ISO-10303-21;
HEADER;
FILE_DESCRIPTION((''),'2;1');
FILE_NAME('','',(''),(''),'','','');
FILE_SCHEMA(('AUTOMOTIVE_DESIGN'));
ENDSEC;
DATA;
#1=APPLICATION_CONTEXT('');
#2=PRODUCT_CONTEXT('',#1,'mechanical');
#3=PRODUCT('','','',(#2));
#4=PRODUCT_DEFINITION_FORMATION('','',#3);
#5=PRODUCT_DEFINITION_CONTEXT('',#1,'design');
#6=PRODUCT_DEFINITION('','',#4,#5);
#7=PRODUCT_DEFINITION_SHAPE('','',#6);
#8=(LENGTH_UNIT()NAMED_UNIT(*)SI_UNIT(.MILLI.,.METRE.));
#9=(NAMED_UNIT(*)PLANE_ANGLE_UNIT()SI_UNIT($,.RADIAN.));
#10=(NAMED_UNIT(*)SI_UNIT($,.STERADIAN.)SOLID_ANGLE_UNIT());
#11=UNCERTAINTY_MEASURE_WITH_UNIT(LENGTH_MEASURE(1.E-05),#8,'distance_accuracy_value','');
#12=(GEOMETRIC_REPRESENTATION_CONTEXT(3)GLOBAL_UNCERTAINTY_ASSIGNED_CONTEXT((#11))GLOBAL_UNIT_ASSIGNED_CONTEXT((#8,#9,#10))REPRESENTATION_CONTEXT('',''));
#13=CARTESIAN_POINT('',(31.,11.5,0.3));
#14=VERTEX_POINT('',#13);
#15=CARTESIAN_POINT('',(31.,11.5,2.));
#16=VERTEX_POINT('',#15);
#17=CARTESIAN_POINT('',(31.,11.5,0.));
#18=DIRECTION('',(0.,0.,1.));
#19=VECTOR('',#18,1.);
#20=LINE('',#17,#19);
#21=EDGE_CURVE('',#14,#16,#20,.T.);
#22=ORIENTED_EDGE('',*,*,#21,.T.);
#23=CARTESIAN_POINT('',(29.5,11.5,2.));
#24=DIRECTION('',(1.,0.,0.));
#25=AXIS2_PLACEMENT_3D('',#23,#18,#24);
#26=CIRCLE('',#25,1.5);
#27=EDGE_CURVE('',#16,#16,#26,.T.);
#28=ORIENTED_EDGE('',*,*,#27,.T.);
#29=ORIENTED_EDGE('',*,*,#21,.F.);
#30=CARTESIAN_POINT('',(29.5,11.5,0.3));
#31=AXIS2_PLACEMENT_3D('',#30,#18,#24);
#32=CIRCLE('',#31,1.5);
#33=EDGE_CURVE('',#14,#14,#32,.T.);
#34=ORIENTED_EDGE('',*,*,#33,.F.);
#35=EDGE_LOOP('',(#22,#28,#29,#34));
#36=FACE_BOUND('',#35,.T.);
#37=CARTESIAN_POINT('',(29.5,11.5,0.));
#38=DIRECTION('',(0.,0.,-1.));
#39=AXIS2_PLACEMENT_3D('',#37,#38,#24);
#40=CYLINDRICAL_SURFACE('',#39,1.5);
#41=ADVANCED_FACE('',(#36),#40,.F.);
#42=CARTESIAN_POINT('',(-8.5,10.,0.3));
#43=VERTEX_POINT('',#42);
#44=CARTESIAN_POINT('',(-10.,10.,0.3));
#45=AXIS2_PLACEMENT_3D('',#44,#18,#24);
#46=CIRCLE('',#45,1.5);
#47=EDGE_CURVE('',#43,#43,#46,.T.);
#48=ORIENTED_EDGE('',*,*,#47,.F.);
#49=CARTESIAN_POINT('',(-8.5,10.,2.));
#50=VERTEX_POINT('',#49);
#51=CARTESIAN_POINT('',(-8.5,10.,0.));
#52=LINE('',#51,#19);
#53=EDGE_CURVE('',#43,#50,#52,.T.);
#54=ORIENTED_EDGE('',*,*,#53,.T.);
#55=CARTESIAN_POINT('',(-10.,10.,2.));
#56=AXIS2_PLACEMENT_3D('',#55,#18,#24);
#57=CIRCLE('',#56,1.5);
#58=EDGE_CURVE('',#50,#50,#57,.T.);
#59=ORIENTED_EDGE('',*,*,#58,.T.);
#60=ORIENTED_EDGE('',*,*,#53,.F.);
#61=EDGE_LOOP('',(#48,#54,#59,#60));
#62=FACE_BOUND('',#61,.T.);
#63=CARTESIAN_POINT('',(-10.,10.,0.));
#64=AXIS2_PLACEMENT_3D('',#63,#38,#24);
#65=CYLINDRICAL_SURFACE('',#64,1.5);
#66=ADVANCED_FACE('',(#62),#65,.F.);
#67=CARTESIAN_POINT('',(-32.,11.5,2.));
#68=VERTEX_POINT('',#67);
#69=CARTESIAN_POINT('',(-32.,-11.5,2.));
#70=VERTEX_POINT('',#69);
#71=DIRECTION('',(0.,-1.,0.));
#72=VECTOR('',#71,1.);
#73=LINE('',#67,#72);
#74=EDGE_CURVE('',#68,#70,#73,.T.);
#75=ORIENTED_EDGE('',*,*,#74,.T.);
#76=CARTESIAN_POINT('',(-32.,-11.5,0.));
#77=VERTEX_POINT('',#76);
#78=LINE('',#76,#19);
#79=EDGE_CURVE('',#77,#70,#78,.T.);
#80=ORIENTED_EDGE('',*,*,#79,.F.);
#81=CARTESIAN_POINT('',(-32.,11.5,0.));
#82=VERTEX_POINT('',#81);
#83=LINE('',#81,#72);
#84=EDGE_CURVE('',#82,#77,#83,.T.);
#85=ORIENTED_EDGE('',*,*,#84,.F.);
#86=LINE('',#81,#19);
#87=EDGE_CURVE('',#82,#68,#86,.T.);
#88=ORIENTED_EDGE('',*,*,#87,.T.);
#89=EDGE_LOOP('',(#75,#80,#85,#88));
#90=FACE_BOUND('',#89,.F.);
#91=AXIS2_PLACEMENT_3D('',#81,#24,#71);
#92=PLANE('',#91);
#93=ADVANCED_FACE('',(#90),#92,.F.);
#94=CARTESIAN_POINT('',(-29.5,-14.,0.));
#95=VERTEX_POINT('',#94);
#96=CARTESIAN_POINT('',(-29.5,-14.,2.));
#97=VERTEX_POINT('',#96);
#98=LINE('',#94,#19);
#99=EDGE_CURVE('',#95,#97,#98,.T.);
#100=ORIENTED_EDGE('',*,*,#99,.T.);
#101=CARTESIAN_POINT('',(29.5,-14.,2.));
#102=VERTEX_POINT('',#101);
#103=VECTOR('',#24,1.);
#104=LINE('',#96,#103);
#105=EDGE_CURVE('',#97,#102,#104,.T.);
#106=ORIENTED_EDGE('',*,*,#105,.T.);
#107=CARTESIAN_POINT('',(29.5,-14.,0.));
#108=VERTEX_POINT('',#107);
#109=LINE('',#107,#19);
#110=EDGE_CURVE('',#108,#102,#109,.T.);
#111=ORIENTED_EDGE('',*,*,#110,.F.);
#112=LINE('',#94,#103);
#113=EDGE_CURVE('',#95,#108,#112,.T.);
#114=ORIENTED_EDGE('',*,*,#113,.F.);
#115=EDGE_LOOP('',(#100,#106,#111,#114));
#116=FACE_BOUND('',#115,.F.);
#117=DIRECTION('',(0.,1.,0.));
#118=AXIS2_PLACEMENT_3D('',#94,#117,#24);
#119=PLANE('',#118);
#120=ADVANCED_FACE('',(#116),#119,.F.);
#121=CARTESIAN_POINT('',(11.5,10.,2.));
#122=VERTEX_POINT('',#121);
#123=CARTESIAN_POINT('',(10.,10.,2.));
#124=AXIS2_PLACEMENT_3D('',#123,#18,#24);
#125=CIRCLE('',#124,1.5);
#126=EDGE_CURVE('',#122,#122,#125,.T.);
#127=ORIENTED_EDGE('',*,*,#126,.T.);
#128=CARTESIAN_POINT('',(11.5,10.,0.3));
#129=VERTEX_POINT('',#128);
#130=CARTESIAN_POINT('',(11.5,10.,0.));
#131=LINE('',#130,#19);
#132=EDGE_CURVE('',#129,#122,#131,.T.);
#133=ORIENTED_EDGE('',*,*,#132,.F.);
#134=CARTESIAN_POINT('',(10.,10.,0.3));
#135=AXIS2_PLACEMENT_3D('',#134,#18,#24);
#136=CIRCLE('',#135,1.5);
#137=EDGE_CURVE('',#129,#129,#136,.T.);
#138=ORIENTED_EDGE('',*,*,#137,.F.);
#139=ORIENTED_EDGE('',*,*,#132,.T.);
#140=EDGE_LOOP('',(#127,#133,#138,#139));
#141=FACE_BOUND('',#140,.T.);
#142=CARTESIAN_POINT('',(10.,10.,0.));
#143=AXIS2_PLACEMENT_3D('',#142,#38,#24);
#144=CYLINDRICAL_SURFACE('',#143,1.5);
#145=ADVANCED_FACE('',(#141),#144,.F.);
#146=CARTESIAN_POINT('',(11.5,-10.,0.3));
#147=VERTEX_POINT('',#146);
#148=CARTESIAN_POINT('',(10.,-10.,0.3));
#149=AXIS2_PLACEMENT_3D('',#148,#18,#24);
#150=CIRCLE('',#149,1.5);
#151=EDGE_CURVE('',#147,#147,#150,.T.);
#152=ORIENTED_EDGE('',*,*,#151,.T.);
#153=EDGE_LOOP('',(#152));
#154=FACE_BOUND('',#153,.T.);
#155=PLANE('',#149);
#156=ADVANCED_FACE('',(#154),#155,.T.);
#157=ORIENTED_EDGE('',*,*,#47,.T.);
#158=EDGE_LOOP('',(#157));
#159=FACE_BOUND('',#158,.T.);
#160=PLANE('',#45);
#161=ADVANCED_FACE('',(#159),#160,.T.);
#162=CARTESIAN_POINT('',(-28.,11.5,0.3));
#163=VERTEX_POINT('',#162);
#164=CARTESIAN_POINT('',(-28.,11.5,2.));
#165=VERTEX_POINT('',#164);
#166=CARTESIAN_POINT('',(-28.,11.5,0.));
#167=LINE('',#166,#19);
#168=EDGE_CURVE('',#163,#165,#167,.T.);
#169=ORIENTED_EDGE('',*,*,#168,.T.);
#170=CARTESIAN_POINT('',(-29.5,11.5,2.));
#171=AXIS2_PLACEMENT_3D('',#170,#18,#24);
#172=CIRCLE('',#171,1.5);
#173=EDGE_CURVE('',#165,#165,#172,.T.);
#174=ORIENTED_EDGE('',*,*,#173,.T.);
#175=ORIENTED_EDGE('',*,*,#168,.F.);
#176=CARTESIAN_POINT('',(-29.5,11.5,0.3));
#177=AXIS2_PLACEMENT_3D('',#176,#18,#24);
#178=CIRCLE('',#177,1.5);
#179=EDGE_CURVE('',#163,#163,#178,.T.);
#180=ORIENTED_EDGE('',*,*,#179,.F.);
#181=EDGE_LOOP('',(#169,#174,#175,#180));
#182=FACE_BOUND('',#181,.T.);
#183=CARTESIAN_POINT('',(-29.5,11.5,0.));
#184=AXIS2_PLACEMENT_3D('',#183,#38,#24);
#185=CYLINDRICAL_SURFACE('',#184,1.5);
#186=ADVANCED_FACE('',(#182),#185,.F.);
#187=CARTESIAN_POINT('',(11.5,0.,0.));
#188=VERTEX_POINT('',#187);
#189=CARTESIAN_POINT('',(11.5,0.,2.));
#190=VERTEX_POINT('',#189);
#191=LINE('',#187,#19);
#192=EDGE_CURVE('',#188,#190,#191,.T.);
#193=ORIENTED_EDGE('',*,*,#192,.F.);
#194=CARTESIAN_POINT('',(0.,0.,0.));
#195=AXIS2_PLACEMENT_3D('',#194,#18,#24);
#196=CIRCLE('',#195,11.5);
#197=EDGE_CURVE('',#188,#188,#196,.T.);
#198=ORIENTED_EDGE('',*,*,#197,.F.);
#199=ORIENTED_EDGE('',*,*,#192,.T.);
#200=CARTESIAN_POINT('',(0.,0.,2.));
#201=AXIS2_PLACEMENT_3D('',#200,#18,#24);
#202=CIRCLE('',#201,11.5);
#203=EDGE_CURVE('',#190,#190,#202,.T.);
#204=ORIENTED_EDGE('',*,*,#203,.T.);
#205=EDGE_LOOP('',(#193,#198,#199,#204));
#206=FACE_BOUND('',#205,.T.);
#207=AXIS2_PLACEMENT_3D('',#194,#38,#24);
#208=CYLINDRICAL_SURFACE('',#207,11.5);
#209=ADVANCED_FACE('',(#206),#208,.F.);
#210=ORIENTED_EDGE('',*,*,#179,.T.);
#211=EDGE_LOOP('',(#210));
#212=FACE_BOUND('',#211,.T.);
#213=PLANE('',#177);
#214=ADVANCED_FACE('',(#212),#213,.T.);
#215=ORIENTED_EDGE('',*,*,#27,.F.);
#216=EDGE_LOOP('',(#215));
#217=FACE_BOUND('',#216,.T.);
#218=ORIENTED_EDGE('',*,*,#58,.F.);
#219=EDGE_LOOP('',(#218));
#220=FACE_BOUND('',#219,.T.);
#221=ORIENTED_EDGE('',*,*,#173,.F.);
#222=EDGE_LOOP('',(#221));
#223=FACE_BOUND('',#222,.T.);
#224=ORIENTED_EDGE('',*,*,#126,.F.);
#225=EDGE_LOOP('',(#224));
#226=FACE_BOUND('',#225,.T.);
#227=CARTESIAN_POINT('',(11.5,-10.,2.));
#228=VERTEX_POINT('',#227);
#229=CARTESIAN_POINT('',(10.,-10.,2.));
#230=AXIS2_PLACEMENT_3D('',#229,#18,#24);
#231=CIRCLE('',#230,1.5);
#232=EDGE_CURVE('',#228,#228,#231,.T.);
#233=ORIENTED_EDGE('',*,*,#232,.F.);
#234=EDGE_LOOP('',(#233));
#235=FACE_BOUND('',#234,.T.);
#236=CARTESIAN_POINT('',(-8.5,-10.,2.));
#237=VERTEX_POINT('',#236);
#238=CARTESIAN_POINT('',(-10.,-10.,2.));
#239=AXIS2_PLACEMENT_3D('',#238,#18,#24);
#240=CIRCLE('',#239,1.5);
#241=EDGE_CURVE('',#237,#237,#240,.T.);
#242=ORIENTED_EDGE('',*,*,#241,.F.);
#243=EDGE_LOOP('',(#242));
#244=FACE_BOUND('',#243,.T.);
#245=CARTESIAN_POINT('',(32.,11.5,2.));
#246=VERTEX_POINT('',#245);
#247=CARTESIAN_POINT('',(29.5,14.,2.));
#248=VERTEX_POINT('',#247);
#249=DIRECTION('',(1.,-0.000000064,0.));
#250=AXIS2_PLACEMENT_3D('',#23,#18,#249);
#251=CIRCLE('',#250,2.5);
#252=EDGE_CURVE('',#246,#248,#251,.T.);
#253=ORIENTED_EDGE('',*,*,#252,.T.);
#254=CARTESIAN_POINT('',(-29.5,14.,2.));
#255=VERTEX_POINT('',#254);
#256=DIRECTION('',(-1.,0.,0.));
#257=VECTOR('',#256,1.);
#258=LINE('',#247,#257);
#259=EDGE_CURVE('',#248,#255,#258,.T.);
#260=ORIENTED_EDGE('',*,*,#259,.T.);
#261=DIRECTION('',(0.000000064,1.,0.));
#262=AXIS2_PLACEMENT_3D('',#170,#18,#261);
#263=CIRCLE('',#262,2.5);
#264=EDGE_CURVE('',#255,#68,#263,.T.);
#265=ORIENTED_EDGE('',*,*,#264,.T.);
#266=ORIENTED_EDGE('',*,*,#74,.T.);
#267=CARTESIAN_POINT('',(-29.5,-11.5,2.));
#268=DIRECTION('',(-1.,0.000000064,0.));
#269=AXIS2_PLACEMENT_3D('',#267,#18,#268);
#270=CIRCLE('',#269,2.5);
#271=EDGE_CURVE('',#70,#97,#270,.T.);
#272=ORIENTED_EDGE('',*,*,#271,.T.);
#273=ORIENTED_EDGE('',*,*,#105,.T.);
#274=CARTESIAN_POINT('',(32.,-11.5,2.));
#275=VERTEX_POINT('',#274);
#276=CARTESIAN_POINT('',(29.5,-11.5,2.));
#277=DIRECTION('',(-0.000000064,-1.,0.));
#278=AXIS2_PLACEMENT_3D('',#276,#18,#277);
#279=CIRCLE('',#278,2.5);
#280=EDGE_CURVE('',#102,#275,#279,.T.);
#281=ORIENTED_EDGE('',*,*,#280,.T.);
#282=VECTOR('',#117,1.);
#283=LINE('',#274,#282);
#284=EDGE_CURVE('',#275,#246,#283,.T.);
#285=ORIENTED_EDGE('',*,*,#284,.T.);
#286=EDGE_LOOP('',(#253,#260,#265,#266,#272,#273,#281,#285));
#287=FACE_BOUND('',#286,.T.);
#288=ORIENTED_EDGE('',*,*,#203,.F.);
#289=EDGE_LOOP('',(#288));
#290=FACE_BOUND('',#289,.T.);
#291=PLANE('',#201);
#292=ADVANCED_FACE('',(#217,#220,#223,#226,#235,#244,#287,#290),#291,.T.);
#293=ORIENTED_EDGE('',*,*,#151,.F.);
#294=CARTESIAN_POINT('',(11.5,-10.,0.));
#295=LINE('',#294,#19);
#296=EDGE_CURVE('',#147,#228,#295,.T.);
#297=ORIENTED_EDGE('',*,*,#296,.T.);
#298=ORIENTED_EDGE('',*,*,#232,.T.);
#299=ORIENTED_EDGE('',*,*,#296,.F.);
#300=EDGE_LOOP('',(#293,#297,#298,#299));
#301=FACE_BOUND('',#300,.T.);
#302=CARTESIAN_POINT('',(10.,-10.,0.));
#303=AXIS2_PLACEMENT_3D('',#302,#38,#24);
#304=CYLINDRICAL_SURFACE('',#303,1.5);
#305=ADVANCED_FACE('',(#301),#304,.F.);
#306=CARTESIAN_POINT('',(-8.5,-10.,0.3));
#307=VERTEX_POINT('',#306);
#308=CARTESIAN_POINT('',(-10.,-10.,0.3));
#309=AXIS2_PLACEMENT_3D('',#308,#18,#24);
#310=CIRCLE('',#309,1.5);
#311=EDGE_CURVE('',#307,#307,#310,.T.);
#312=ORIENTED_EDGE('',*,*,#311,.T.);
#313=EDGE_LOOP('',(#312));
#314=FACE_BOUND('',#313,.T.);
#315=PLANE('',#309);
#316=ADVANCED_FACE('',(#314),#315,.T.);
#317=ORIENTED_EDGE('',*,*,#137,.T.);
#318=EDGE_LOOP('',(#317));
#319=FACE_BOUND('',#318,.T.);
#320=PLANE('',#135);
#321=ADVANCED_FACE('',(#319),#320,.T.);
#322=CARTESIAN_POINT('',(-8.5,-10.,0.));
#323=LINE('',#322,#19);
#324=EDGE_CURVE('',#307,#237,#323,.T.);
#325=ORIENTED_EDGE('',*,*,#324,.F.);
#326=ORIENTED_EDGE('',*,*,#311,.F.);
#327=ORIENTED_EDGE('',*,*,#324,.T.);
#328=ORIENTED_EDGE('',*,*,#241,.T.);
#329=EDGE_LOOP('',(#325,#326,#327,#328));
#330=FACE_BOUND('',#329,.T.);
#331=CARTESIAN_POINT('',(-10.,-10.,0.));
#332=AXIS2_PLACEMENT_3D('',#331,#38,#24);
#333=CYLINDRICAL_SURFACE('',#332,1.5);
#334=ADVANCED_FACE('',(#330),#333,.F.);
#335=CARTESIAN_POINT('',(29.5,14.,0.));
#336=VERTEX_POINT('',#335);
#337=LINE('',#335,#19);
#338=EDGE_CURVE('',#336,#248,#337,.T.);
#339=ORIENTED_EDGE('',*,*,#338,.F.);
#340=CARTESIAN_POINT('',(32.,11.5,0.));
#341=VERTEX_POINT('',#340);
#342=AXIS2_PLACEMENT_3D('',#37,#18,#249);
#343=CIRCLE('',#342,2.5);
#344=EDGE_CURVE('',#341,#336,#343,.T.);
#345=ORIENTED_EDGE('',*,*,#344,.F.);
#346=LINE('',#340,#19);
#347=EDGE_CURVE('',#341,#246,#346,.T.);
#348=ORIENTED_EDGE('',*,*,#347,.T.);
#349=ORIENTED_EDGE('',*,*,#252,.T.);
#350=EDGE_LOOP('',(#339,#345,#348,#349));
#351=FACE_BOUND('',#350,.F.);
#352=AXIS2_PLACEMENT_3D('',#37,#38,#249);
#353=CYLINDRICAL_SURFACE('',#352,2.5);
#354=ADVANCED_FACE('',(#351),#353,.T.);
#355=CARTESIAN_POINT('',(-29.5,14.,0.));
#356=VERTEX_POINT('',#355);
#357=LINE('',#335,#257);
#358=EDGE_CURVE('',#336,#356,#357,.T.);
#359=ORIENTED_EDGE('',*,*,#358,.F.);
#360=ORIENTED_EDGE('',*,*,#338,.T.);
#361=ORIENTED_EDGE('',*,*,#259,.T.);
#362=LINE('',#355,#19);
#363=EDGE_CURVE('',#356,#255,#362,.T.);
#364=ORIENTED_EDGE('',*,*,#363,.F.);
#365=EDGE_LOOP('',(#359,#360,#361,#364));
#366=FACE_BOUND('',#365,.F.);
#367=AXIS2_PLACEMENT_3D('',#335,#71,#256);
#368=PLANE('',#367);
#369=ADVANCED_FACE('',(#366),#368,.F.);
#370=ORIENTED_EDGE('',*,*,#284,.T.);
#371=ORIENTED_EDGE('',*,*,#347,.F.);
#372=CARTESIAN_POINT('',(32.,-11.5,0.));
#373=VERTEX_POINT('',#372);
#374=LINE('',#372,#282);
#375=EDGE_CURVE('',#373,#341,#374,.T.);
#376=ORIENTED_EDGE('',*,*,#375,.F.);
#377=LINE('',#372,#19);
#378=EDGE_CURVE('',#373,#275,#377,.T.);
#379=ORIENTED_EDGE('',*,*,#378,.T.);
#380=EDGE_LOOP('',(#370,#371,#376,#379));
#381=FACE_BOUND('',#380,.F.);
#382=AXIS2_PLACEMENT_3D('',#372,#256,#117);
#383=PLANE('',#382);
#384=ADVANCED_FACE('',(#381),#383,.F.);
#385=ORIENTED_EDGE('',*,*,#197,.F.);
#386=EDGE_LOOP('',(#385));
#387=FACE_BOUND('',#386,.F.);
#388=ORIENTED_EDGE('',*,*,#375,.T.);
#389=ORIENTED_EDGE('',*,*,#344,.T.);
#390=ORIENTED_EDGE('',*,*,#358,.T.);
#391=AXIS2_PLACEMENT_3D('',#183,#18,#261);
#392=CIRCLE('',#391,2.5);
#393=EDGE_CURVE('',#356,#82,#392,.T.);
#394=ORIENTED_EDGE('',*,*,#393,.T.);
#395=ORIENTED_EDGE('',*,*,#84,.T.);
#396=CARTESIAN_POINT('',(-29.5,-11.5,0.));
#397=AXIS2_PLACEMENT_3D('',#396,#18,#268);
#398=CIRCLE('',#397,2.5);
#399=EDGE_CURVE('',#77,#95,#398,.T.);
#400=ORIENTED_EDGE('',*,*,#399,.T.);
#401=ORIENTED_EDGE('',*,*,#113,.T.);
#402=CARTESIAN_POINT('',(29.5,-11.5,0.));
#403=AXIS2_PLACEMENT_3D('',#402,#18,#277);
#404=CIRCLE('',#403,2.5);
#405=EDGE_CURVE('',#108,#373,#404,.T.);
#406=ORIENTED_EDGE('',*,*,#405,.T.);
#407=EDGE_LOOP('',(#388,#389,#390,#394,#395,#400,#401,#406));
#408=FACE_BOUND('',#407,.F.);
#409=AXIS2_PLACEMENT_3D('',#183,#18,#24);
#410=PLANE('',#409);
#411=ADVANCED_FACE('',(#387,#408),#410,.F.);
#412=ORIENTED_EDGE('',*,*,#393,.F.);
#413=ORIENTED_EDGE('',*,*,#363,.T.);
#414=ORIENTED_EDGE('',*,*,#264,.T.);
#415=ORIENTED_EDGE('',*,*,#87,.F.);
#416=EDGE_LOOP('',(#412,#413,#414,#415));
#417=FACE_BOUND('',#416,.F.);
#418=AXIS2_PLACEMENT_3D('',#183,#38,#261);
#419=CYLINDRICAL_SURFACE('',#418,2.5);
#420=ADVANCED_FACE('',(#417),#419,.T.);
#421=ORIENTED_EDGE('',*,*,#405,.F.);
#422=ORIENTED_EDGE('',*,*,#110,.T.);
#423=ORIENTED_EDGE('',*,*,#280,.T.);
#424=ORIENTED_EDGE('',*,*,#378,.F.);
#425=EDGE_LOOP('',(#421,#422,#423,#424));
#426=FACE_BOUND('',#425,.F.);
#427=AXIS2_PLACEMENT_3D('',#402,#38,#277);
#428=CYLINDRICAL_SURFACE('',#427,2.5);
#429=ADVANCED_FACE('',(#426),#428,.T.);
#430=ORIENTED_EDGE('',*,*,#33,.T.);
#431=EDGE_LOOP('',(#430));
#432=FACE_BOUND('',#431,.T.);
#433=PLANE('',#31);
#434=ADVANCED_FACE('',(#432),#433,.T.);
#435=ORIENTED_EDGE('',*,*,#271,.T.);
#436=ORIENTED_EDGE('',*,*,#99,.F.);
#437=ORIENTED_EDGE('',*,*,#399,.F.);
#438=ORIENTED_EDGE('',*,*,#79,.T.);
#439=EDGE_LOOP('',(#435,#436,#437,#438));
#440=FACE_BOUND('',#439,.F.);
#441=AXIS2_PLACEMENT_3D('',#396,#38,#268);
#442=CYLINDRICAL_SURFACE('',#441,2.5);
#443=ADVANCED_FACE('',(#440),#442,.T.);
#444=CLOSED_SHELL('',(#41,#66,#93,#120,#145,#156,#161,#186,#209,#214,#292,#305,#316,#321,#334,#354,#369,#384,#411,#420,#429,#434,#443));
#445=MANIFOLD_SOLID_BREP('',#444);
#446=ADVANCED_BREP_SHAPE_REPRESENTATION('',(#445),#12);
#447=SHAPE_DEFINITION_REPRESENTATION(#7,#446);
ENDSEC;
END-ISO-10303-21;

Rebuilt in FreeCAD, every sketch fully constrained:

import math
import FreeCAD as App
import Part
import Sketcher

V = App.Vector
Q = App.Units.Quantity

doc = App.newDocument("Part")
body = doc.addObject("PartDesign::Body", "Body")

# Sketch on XY plane
sketch1 = body.newObject("Sketcher::SketchObject", "Sketch")
sketch1.AttachmentSupport = (doc.getObject("XY_Plane"), [""])
sketch1.MapMode = "FlatFace"
sketch1.addGeometry([
    Part.ArcOfCircle(Part.Circle(V(29.5, 11.5, 0), V(0, 0, 1), 2.5), math.radians(-0.000004), math.radians(90.000004)),  # 0
    Part.LineSegment(V(29.5, 14, 0), V(-29.5, 14, 0)),  # 1
    Part.ArcOfCircle(Part.Circle(V(-29.5, 11.5, 0), V(0, 0, 1), 2.5), math.radians(89.999996), math.radians(180.000004)),  # 2
    Part.LineSegment(V(-32, 11.5, 0), V(-32, -11.5, 0)),  # 3
    Part.ArcOfCircle(Part.Circle(V(-29.5, -11.5, 0), V(0, 0, 1), 2.5), math.radians(179.999996), math.radians(270.000004)),  # 4
    Part.LineSegment(V(-29.5, -14, 0), V(29.5, -14, 0)),  # 5
    Part.ArcOfCircle(Part.Circle(V(29.5, -11.5, 0), V(0, 0, 1), 2.5), math.radians(-90.000004), math.radians(0.000004)),  # 6
    Part.LineSegment(V(32, -11.5, 0), V(32, 11.5, 0)),  # 7
    Part.Circle(V(-10, -10, 0), V(0, 0, 1), 1.5),  # 8
    Part.Circle(V(10, -10, 0), V(0, 0, 1), 1.5),  # 9
    Part.Circle(V(0, 0, 0), V(0, 0, 1), 11.5),  # 10
    Part.Circle(V(-29.5, 11.5, 0), V(0, 0, 1), 1.5),  # 11
    Part.Circle(V(-10, 10, 0), V(0, 0, 1), 1.5),  # 12
    Part.Circle(V(10, 10, 0), V(0, 0, 1), 1.5),  # 13
    Part.Circle(V(29.5, 11.5, 0), V(0, 0, 1), 1.5),  # 14
], False)
sketch1.addConstraint([
    Sketcher.Constraint("Tangent", 0, 2, 1, 1),
    Sketcher.Constraint("Tangent", 1, 2, 2, 1),
    Sketcher.Constraint("Tangent", 2, 2, 3, 1),
    Sketcher.Constraint("Tangent", 3, 2, 4, 1),
    Sketcher.Constraint("Tangent", 4, 2, 5, 1),
    Sketcher.Constraint("Tangent", 5, 2, 6, 1),
    Sketcher.Constraint("Tangent", 6, 2, 7, 1),
    Sketcher.Constraint("Tangent", 7, 2, 0, 1),
    Sketcher.Constraint("Horizontal", 1),
    Sketcher.Constraint("Vertical", 3),
    Sketcher.Constraint("Horizontal", 5),
    Sketcher.Constraint("Vertical", 7),
    Sketcher.Constraint("Coincident", 10, 3, -1, 1),
    Sketcher.Constraint("Coincident", 11, 3, 2, 3),
    Sketcher.Constraint("Coincident", 14, 3, 0, 3),
    Sketcher.Constraint("Equal", 0, 2),
    Sketcher.Constraint("Equal", 2, 4),
    Sketcher.Constraint("Equal", 4, 6),
    Sketcher.Constraint("Equal", 8, 9),
    Sketcher.Constraint("Equal", 9, 11),
    Sketcher.Constraint("Equal", 11, 12),
    Sketcher.Constraint("Equal", 12, 13),
    Sketcher.Constraint("Equal", 13, 14),
    Sketcher.Constraint("Symmetric", 0, 3, 4, 3, -1, 1),
    Sketcher.Constraint("Symmetric", 9, 3, 12, 3, -1, 1),
    Sketcher.Constraint("Symmetric", 8, 3, 13, 3, -1, 1),
    Sketcher.Constraint("Symmetric", 8, 3, 9, 3, -2),
    Sketcher.Constraint("Diameter", 8, Q("3 mm")),
    Sketcher.Constraint("Diameter", 10, Q("23 mm")),
    Sketcher.Constraint("Radius", 0, Q("2.5 mm")),
    Sketcher.Constraint("DistanceX", 1, 2, 1, 1, Q("59 mm")),
    Sketcher.Constraint("DistanceY", 3, 2, 3, 1, Q("23 mm")),
    Sketcher.Constraint("DistanceX", 8, 3, -1, 1, Q("10 mm")),
    Sketcher.Constraint("DistanceY", 8, 3, -1, 1, Q("10 mm")),
])
pad1 = body.newObject("PartDesign::Pad", "Pad")
pad1.Profile = sketch1
pad1.Length = 2

# Sketch on XY plane
sketch2 = body.newObject("Sketcher::SketchObject", "Sketch001")
sketch2.AttachmentSupport = (doc.getObject("XY_Plane"), [""])
sketch2.MapMode = "FlatFace"
sketch2.addGeometry([
    Part.Circle(V(-29.5, 11.5, 0), V(0, 0, 1), 1.5),  # 0
    Part.Circle(V(-10, 10, 0), V(0, 0, 1), 1.5),  # 1
    Part.Circle(V(10, 10, 0), V(0, 0, 1), 1.5),  # 2
    Part.Circle(V(29.5, 11.5, 0), V(0, 0, 1), 1.5),  # 3
    Part.Circle(V(10, -10, 0), V(0, 0, 1), 1.5),  # 4
    Part.Circle(V(-10, -10, 0), V(0, 0, 1), 1.5),  # 5
], False)
sketch2.addConstraint([
    Sketcher.Constraint("Equal", 0, 1),
    Sketcher.Constraint("Equal", 1, 2),
    Sketcher.Constraint("Equal", 2, 3),
    Sketcher.Constraint("Equal", 3, 4),
    Sketcher.Constraint("Equal", 4, 5),
    Sketcher.Constraint("Symmetric", 1, 3, 4, 3, -1, 1),
    Sketcher.Constraint("Symmetric", 2, 3, 5, 3, -1, 1),
    Sketcher.Constraint("Symmetric", 1, 3, 2, 3, -2),
    Sketcher.Constraint("Symmetric", 0, 3, 3, 3, -2),
    Sketcher.Constraint("Diameter", 0, Q("3 mm")),
    Sketcher.Constraint("DistanceX", 1, 3, -1, 1, Q("10 mm")),
    Sketcher.Constraint("DistanceY", -1, 1, 1, 3, Q("10 mm")),
    Sketcher.Constraint("DistanceX", 0, 3, 3, 3, Q("59 mm")),
    Sketcher.Constraint("DistanceY", -1, 1, 0, 3, Q("11.5 mm")),
])
pad2 = body.newObject("PartDesign::Pad", "Pad001")
pad2.Profile = sketch2
pad2.Length = 0.3

doc.recompute()
